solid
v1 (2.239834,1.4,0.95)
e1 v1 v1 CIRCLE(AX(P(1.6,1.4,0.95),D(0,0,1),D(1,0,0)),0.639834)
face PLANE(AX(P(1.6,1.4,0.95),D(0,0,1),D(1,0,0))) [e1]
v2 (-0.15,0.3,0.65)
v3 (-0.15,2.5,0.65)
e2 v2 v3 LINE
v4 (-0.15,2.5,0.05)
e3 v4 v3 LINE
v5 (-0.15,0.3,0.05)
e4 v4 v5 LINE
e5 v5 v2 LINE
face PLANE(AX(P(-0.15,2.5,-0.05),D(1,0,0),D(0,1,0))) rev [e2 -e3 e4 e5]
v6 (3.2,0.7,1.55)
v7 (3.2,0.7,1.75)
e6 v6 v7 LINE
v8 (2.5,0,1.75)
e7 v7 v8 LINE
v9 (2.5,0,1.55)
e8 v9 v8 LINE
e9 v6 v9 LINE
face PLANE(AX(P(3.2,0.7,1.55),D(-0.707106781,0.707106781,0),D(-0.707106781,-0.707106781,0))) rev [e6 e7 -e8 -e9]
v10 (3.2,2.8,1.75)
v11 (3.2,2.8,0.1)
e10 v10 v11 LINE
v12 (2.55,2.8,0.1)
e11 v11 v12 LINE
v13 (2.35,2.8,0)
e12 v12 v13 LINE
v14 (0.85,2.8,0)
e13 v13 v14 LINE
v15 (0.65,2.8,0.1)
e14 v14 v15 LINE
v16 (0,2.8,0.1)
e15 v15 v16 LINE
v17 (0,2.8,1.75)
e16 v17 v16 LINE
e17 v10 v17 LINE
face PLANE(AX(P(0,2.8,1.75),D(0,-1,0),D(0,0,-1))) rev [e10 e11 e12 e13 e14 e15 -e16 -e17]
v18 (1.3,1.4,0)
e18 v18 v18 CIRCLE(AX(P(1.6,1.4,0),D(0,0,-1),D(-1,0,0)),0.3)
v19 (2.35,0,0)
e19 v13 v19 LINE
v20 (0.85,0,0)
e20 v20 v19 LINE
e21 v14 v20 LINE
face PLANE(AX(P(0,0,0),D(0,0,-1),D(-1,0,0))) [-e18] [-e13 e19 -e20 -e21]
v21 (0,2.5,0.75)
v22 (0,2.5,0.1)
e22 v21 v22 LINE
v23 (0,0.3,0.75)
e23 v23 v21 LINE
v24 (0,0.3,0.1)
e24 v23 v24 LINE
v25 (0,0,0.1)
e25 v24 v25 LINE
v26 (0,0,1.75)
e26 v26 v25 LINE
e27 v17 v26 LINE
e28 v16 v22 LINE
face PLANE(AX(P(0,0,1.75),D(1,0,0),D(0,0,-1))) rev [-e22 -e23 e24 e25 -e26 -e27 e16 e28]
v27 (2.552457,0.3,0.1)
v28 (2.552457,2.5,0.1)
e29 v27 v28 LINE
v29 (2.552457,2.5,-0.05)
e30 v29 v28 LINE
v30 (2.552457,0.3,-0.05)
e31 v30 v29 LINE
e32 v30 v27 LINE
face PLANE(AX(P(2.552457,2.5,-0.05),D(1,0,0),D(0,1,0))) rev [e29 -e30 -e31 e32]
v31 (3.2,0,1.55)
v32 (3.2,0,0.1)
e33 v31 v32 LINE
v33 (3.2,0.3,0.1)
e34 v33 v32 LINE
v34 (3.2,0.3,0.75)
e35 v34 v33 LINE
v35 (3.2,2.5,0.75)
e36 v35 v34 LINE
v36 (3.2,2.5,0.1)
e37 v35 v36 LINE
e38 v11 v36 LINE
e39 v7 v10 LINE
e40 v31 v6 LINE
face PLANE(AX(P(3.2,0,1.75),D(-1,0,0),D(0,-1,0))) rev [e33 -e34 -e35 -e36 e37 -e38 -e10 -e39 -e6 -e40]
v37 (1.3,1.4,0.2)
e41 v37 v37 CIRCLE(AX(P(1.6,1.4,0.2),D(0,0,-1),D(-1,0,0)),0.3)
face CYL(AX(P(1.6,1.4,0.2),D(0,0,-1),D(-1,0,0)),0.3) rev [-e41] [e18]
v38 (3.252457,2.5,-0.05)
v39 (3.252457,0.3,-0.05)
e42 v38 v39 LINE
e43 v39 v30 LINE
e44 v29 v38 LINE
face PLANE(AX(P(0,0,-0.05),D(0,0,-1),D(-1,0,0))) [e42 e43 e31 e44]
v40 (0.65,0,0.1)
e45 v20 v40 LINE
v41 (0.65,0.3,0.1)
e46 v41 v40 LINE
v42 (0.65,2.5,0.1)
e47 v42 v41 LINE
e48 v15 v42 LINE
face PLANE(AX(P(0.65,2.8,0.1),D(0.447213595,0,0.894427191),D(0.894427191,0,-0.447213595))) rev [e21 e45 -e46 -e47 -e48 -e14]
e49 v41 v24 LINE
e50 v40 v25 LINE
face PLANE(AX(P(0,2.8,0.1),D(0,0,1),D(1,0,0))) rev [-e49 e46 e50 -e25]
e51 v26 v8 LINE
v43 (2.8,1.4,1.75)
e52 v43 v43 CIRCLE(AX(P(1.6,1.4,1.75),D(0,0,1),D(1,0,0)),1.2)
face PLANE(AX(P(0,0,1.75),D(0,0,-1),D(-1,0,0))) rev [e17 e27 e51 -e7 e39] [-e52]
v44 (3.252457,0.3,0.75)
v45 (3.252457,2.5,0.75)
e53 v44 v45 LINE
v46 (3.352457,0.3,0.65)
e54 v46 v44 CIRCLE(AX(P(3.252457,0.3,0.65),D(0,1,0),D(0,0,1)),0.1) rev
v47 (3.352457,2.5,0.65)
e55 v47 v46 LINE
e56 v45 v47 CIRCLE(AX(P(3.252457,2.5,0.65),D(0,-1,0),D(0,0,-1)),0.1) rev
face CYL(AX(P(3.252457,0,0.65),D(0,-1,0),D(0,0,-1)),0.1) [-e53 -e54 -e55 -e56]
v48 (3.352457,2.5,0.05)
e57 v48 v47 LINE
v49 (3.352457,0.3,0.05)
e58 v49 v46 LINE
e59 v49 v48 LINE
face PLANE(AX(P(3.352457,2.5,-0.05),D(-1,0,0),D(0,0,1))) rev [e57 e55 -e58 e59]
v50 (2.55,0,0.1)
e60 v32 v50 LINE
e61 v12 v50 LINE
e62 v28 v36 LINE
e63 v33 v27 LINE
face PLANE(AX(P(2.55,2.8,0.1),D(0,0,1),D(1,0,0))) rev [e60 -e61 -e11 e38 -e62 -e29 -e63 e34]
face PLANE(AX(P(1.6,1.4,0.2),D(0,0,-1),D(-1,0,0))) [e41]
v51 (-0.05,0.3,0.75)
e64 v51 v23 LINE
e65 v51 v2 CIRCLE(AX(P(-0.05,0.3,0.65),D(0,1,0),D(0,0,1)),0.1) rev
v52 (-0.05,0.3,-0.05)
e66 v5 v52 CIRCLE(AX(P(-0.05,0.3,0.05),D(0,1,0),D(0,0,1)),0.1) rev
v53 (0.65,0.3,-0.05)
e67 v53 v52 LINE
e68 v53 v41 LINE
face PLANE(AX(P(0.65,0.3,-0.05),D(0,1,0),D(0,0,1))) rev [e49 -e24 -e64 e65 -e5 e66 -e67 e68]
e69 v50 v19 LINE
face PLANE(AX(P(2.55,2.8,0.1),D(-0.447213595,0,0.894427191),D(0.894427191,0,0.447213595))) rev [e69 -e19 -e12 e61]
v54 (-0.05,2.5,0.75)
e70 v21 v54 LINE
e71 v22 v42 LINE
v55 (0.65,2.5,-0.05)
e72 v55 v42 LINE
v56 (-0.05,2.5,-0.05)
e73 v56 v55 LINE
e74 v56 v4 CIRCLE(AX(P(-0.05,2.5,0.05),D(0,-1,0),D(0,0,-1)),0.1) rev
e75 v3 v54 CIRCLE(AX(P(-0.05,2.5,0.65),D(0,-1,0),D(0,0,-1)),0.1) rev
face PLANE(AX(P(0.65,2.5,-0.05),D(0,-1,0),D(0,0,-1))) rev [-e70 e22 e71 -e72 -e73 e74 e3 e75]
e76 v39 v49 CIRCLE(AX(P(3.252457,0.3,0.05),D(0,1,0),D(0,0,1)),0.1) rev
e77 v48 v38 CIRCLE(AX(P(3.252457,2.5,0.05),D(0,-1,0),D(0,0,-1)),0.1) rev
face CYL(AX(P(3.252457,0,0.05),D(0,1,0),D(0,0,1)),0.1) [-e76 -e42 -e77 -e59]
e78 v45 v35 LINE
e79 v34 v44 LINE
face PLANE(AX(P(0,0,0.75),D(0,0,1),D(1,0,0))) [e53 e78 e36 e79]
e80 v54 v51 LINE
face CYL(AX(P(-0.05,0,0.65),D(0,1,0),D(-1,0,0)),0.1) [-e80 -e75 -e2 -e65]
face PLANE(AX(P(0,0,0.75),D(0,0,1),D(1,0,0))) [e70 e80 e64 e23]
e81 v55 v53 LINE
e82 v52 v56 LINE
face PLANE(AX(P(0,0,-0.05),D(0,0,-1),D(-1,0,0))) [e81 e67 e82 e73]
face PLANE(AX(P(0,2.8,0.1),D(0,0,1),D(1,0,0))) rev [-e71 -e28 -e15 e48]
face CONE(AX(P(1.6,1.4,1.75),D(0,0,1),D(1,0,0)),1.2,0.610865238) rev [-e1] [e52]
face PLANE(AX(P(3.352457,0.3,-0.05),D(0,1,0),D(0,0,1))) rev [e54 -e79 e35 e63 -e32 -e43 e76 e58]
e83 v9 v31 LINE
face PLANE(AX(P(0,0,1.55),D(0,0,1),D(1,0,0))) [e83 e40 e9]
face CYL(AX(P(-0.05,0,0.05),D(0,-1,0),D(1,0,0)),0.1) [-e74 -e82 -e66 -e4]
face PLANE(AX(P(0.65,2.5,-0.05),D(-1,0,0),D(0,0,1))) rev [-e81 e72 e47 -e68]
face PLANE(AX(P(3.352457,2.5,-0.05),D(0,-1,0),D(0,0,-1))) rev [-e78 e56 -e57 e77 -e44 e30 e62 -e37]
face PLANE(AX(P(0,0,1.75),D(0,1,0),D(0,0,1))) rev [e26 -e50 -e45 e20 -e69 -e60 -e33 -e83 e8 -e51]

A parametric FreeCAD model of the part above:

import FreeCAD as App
import Part
import Sketcher


def edges_at(feature, points):
    """Names of the edges that pass closest to the given points."""
    edges = feature.Shape.Edges
    near = lambda p: min(range(len(edges)), key=lambda i: edges[i].distToShape(Part.Vertex(*p))[0])
    return sorted({f"Edge{near(p) + 1}" for p in points})

doc = App.newDocument("Part")
body = doc.addObject("PartDesign::Body", "Body")

# Sketch on XY plane
sketch1 = body.newObject("Sketcher::SketchObject", "Sketch")
sketch1.AttachmentSupport = (doc.getObject("XY_Plane"), [""])
sketch1.MapMode = "FlatFace"
sketch1.addGeometry([
    Part.LineSegment(App.Vector(0, 2.8, 0), App.Vector(0, 0, 0)),
    Part.LineSegment(App.Vector(0, 0, 0), App.Vector(3.2, 0, 0)),
    Part.LineSegment(App.Vector(3.2, 0, 0), App.Vector(3.2, 2.8, 0)),
    Part.LineSegment(App.Vector(3.2, 2.8, 0), App.Vector(0, 2.8, 0)),
], False)
sketch1.addConstraint([
    Sketcher.Constraint("Coincident", 0, 2, 1, 1),
    Sketcher.Constraint("Coincident", 1, 2, 2, 1),
    Sketcher.Constraint("Coincident", 2, 2, 3, 1),
    Sketcher.Constraint("Coincident", 3, 2, 0, 1),
    Sketcher.Constraint("Vertical", 0),
    Sketcher.Constraint("Horizontal", 1),
    Sketcher.Constraint("Vertical", 2),
    Sketcher.Constraint("Horizontal", 3),
    Sketcher.Constraint("Coincident", 0, 2, -1, 1),
    Sketcher.Constraint("DistanceX", 1, 1, 1, 2, 3.2),
    Sketcher.Constraint("DistanceY", 0, 2, 0, 1, 2.8),
])
pad1 = body.newObject("PartDesign::Pad", "Pad")
pad1.Profile = sketch1
pad1.Length = 1.75

# Sketch on XY plane
sketch2 = body.newObject("Sketcher::SketchObject", "Sketch001")
sketch2.AttachmentSupport = (doc.getObject("XY_Plane"), [""])
sketch2.MapMode = "FlatFace"
sketch2.AttachmentOffset = App.Placement(App.Vector(0, 0, 1.75), App.Rotation())
sketch2.addGeometry([
    Part.LineSegment(App.Vector(3.2, 0, 0), App.Vector(3.2, 0.7, 0)),
    Part.LineSegment(App.Vector(3.2, 0.7, 0), App.Vector(2.5, 0, 0)),
    Part.LineSegment(App.Vector(2.5, 0, 0), App.Vector(3.2, 0, 0)),
], False)
sketch2.addConstraint([
    Sketcher.Constraint("Coincident", 0, 2, 1, 1),
    Sketcher.Constraint("Coincident", 1, 2, 2, 1),
    Sketcher.Constraint("Coincident", 2, 2, 0, 1),
    Sketcher.Constraint("Vertical", 0),
    Sketcher.Constraint("Horizontal", 2),
    Sketcher.Constraint("PointOnObject", 1, 2, -1),
    Sketcher.Constraint("Equal", 2, 0),
    Sketcher.Constraint("DistanceX", 2, 1, 2, 2, 0.7),
    Sketcher.Constraint("DistanceX", -1, 1, 0, 2, 3.2),
])
pocket1 = body.newObject("PartDesign::Pocket", "Pocket")
pocket1.Profile = sketch2
pocket1.Length = 0.2

# Sketch on XY plane
sketch3 = body.newObject("Sketcher::SketchObject", "Sketch002")
sketch3.AttachmentSupport = (doc.getObject("XY_Plane"), [""])
sketch3.MapMode = "FlatFace"
sketch3.AttachmentOffset = App.Placement(App.Vector(0, 0, 1.75), App.Rotation())
sketch3.addGeometry(Part.Circle(App.Vector(1.6, 1.4, 0), App.Vector(0, 0, 1), 1.2), False)
sketch3.addConstraint([
    Sketcher.Constraint("Diameter", 0, 2.4),
    Sketcher.Constraint("DistanceX", -1, 1, 0, 3, 1.6),
    Sketcher.Constraint("DistanceY", -1, 1, 0, 3, 1.4),
])
pocket2 = body.newObject("PartDesign::Pocket", "Pocket001")
pocket2.Profile = sketch3
pocket2.Length = 0.8
pocket2.TaperAngle = -35

# Sketch on XZ plane
sketch4 = body.newObject("Sketcher::SketchObject", "Sketch003")
sketch4.AttachmentSupport = (doc.getObject("XZ_Plane"), [""])
sketch4.MapMode = "FlatFace"
sketch4.addGeometry([
    Part.LineSegment(App.Vector(0.65, 0.1, 0), App.Vector(0, 0.1, 0)),  # 0
    Part.LineSegment(App.Vector(0, 0.1, 0), App.Vector(0, 0, 0)),  # 1
    Part.LineSegment(App.Vector(0, 0, 0), App.Vector(0.85, 0, 0)),  # 2
    Part.LineSegment(App.Vector(0.85, 0, 0), App.Vector(0.65, 0.1, 0)),  # 3
    Part.LineSegment(App.Vector(3.2, 0.1, 0), App.Vector(2.55, 0.1, 0)),  # 4
    Part.LineSegment(App.Vector(2.55, 0.1, 0), App.Vector(2.35, 0, 0)),  # 5
    Part.LineSegment(App.Vector(2.35, 0, 0), App.Vector(3.2, 0, 0)),  # 6
    Part.LineSegment(App.Vector(3.2, 0, 0), App.Vector(3.2, 0.1, 0)),  # 7
], False)
sketch4.addConstraint([
    Sketcher.Constraint("Coincident", 0, 2, 1, 1),
    Sketcher.Constraint("Coincident", 1, 2, 2, 1),
    Sketcher.Constraint("Coincident", 2, 2, 3, 1),
    Sketcher.Constraint("Coincident", 3, 2, 0, 1),
    Sketcher.Constraint("Coincident", 4, 2, 5, 1),
    Sketcher.Constraint("Coincident", 5, 2, 6, 1),
    Sketcher.Constraint("Coincident", 6, 2, 7, 1),
    Sketcher.Constraint("Coincident", 7, 2, 4, 1),
    Sketcher.Constraint("Horizontal", 0),
    Sketcher.Constraint("Vertical", 1),
    Sketcher.Constraint("Horizontal", 2),
    Sketcher.Constraint("Horizontal", 4),
    Sketcher.Constraint("Horizontal", 6),
    Sketcher.Constraint("Vertical", 7),
    Sketcher.Constraint("Coincident", 1, 2, -1, 1),
    Sketcher.Constraint("PointOnObject", 5, 2, -1),
    Sketcher.Constraint("Horizontal", 3, 2, 4, 2),
    Sketcher.Constraint("Equal", 0, 4),
    Sketcher.Constraint("Equal", 2, 6),
    Sketcher.Constraint("DistanceY", 1, 2, 1, 1, 0.1),
    Sketcher.Constraint("DistanceX", 0, 2, 0, 1, 0.65),
    Sketcher.Constraint("DistanceX", 2, 1, 2, 2, 0.85),
    Sketcher.Constraint("DistanceX", -1, 1, 6, 2, 3.2),
])
pocket3 = body.newObject("PartDesign::Pocket", "Pocket002")
pocket3.Profile = sketch4
pocket3.Type = "ThroughAll"

# Sketch on XY plane
sketch5 = body.newObject("Sketcher::SketchObject", "Sketch004")
sketch5.AttachmentSupport = (doc.getObject("XY_Plane"), [""])
sketch5.MapMode = "FlatFace"
sketch5.AttachmentOffset = App.Placement(App.Vector(0, 0, 0.1), App.Rotation())
sketch5.addGeometry([
    Part.LineSegment(App.Vector(3.4, 2.5, 0), App.Vector(3.4, 0.3, 0)),  # 0
    Part.LineSegment(App.Vector(3.4, 0.3, 0), App.Vector(2.6, 0.3, 0)),  # 1
    Part.LineSegment(App.Vector(2.6, 0.3, 0), App.Vector(2.6, 2.5, 0)),  # 2
    Part.LineSegment(App.Vector(2.6, 2.5, 0), App.Vector(3.4, 2.5, 0)),  # 3
    Part.LineSegment(App.Vector(0.7, 2.5, 0), App.Vector(0.7, 0.3, 0)),  # 4
    Part.LineSegment(App.Vector(0.7, 0.3, 0), App.Vector(-0.1, 0.3, 0)),  # 5
    Part.LineSegment(App.Vector(-0.1, 0.3, 0), App.Vector(-0.1, 2.5, 0)),  # 6
    Part.LineSegment(App.Vector(-0.1, 2.5, 0), App.Vector(0.7, 2.5, 0)),  # 7
], False)
sketch5.addConstraint([
    Sketcher.Constraint("Coincident", 0, 2, 1, 1),
    Sketcher.Constraint("Coincident", 1, 2, 2, 1),
    Sketcher.Constraint("Coincident", 2, 2, 3, 1),
    Sketcher.Constraint("Coincident", 3, 2, 0, 1),
    Sketcher.Constraint("Coincident", 4, 2, 5, 1),
    Sketcher.Constraint("Coincident", 5, 2, 6, 1),
    Sketcher.Constraint("Coincident", 6, 2, 7, 1),
    Sketcher.Constraint("Coincident", 7, 2, 4, 1),
    Sketcher.Constraint("Vertical", 0),
    Sketcher.Constraint("Horizontal", 1),
    Sketcher.Constraint("Vertical", 2),
    Sketcher.Constraint("Horizontal", 3),
    Sketcher.Constraint("Vertical", 4),
    Sketcher.Constraint("Horizontal", 5),
    Sketcher.Constraint("Vertical", 6),
    Sketcher.Constraint("Horizontal", 7),
    Sketcher.Constraint("Horizontal", 1, 2, 4, 2),
    Sketcher.Constraint("Horizontal", 3, 2, 6, 2),
    Sketcher.Constraint("Equal", 3, 5),
    Sketcher.Constraint("DistanceX", 1, 2, 1, 1, 0.8),
    Sketcher.Constraint("DistanceY", 0, 2, 0, 1, 2.2),
    Sketcher.Constraint("DistanceY", -1, 1, 0, 2, 0.3),
    Sketcher.Constraint("DistanceX", -1, 1, 4, 2, 0.65),
    Sketcher.Constraint("DistanceX", -1, 1, 0, 2, 3.352457),
])
pad2 = body.newObject("PartDesign::Pad", "Pad001")
pad2.Profile = sketch5
pad2.Length = 0.15
pad2.Reversed = True

# Sketch on XY plane
sketch6 = body.newObject("Sketcher::SketchObject", "Sketch005")
sketch6.AttachmentSupport = (doc.getObject("XY_Plane"), [""])
sketch6.MapMode = "FlatFace"
sketch6.AttachmentOffset = App.Placement(App.Vector(0, 0, 0.1), App.Rotation())
sketch6.addGeometry([
    Part.LineSegment(App.Vector(-0.15, 2.5, 0), App.Vector(-0.15, 0.3, 0)),  # 0
    Part.LineSegment(App.Vector(-0.15, 0.3, 0), App.Vector(0, 0.3, 0)),  # 1
    Part.LineSegment(App.Vector(0, 0.3, 0), App.Vector(0, 2.5, 0)),  # 2
    Part.LineSegment(App.Vector(0, 2.5, 0), App.Vector(-0.15, 2.5, 0)),  # 3
    Part.LineSegment(App.Vector(3.2, 2.5, 0), App.Vector(3.2, 0.3, 0)),  # 4
    Part.LineSegment(App.Vector(3.2, 0.3, 0), App.Vector(3.35, 0.3, 0)),  # 5
    Part.LineSegment(App.Vector(3.35, 0.3, 0), App.Vector(3.35, 2.5, 0)),  # 6
    Part.LineSegment(App.Vector(3.35, 2.5, 0), App.Vector(3.2, 2.5, 0)),  # 7
], False)
sketch6.addConstraint([
    Sketcher.Constraint("Coincident", 0, 2, 1, 1),
    Sketcher.Constraint("Coincident", 1, 2, 2, 1),
    Sketcher.Constraint("Coincident", 2, 2, 3, 1),
    Sketcher.Constraint("Coincident", 3, 2, 0, 1),
    Sketcher.Constraint("Coincident", 4, 2, 5, 1),
    Sketcher.Constraint("Coincident", 5, 2, 6, 1),
    Sketcher.Constraint("Coincident", 6, 2, 7, 1),
    Sketcher.Constraint("Coincident", 7, 2, 4, 1),
    Sketcher.Constraint("Vertical", 0),
    Sketcher.Constraint("Horizontal", 1),
    Sketcher.Constraint("Vertical", 2),
    Sketcher.Constraint("Horizontal", 3),
    Sketcher.Constraint("Vertical", 4),
    Sketcher.Constraint("Horizontal", 5),
    Sketcher.Constraint("Vertical", 6),
    Sketcher.Constraint("Horizontal", 7),
    Sketcher.Constraint("PointOnObject", 1, 2, -2),
    Sketcher.Constraint("Horizontal", 1, 2, 4, 2),
    Sketcher.Constraint("Horizontal", 3, 2, 6, 2),
    Sketcher.Constraint("DistanceY", 0, 2, 0, 1, 2.2),
    Sketcher.Constraint("DistanceX", 1, 1, 1, 2, 0.15),
    Sketcher.Constraint("DistanceY", -1, 1, 0, 2, 0.3),
    Sketcher.Constraint("DistanceX", -1, 1, 4, 2, 3.2),
    Sketcher.Constraint("DistanceX", 5, 1, 5, 2, 0.152457),
])
pad3 = body.newObject("PartDesign::Pad", "Pad002")
pad3.Profile = sketch6
pad3.Length = 0.65
doc.recompute()

fillet = body.newObject("PartDesign::Fillet", "Fillet")
fillet.Base = (pad3, edges_at(pad3, [
    (3.352, 1.4, 0.75),
    (3.352, 1.4, -0.05),
    (-0.15, 1.4, -0.05),
    (-0.15, 1.4, 0.75),
]))
fillet.Radius = 0.1

# Sketch on XY plane
sketch7 = body.newObject("Sketcher::SketchObject", "Sketch006")
sketch7.AttachmentSupport = (doc.getObject("XY_Plane"), [""])
sketch7.MapMode = "FlatFace"
sketch7.addGeometry(Part.Circle(App.Vector(1.6, 1.4, 0), App.Vector(0, 0, 1), 0.3), False)
sketch7.addConstraint([
    Sketcher.Constraint("Diameter", 0, 0.6),
    Sketcher.Constraint("DistanceX", -1, 1, 0, 3, 1.6),
    Sketcher.Constraint("DistanceY", -1, 1, 0, 3, 1.4),
])
pocket4 = body.newObject("PartDesign::Pocket", "Pocket003")
pocket4.Profile = sketch7
pocket4.Length = 0.2
pocket4.Reversed = True

doc.recompute()
